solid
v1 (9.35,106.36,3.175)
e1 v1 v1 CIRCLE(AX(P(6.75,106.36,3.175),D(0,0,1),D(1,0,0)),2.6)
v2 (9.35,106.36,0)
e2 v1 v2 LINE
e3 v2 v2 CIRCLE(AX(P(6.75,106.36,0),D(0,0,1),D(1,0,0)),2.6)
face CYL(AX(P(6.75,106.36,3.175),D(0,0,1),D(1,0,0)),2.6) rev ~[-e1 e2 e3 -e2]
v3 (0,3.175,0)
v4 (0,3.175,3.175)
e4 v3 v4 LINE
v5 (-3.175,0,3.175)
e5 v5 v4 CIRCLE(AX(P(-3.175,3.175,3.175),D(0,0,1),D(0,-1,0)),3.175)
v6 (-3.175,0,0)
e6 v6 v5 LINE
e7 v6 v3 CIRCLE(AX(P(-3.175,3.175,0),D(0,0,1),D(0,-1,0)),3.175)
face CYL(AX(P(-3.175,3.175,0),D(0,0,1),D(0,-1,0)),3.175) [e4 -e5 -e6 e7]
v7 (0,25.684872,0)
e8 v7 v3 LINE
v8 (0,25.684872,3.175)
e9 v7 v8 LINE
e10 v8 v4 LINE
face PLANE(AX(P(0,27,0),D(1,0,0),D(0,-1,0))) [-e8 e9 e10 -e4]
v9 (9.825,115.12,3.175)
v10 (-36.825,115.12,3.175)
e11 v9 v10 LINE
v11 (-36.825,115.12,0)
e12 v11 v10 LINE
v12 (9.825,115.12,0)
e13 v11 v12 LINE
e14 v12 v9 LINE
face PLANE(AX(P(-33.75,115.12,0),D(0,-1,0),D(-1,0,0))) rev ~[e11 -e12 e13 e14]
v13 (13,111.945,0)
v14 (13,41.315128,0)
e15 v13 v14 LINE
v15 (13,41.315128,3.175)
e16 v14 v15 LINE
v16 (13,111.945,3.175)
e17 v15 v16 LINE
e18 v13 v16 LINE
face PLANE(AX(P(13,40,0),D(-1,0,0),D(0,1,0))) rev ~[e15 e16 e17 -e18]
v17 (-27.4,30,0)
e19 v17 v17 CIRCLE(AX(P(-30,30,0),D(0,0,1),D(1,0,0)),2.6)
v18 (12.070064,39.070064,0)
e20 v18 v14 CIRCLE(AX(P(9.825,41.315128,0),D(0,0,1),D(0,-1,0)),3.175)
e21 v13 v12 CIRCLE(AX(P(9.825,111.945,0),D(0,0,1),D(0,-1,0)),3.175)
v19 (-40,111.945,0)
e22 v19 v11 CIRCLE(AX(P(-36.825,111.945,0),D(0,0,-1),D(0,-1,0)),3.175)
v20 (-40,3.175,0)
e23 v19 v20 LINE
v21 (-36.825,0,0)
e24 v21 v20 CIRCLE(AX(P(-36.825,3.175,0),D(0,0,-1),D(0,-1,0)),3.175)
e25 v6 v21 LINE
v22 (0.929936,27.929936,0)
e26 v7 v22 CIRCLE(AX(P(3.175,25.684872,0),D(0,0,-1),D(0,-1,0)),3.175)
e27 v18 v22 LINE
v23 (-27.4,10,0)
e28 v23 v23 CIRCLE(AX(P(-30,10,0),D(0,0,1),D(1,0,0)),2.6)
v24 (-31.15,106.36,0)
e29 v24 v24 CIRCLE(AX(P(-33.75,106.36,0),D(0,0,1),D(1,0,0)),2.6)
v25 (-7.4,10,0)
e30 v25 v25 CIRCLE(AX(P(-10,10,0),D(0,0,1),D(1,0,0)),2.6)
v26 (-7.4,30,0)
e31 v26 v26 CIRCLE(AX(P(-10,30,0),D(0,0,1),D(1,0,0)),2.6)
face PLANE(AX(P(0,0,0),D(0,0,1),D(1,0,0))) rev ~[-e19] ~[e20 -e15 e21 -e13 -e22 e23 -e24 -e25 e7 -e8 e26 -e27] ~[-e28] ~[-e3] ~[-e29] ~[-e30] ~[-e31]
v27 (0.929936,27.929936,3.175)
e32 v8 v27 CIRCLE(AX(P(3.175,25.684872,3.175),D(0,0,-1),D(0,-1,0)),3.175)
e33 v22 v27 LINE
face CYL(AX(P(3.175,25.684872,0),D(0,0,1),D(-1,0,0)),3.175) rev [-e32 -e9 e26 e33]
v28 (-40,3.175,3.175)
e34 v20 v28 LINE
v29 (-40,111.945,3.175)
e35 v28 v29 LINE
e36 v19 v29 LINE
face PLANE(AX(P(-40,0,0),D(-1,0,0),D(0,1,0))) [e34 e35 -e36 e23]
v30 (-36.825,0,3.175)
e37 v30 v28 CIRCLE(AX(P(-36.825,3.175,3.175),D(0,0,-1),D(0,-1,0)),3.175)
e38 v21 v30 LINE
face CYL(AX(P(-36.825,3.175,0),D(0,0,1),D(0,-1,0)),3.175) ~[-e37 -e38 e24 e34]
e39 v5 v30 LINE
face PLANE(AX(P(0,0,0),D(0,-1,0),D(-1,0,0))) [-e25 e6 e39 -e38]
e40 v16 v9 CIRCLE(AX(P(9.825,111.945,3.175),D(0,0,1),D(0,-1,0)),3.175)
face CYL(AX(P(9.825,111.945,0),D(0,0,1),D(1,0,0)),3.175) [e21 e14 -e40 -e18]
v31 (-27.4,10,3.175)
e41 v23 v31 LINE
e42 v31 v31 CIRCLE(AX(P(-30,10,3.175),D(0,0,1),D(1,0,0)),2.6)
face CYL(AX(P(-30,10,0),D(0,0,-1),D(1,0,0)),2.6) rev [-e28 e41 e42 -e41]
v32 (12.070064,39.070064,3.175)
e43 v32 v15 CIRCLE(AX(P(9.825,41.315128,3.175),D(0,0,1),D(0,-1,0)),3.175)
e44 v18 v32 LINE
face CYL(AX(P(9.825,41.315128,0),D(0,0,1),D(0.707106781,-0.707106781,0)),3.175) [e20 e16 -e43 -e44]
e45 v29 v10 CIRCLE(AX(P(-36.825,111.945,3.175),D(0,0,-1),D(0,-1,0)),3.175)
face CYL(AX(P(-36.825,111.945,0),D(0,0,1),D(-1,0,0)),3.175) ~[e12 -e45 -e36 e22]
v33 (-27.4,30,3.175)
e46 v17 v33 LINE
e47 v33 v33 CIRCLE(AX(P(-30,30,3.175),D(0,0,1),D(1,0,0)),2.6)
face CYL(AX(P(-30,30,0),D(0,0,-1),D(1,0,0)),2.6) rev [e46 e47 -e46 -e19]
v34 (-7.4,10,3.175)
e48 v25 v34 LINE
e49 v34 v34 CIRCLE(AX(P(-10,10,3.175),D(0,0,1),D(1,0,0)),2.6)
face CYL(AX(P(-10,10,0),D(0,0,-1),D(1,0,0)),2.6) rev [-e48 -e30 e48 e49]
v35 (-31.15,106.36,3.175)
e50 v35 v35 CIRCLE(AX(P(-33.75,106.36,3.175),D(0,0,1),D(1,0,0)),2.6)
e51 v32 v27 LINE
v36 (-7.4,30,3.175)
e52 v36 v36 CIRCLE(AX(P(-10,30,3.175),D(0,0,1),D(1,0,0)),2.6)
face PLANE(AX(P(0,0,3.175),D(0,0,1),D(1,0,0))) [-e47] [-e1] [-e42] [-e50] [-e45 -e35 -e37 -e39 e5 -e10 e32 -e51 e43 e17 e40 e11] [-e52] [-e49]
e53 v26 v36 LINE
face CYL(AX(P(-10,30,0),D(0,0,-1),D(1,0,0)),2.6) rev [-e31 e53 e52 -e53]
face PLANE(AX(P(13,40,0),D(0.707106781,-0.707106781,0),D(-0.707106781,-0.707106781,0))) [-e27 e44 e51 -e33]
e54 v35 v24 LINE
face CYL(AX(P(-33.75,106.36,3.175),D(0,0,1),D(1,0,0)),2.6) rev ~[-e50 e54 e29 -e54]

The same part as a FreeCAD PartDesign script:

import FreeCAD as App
import Part
import Sketcher
from FreeCAD import Vector
Q = App.Units.Quantity


def edges_at(feature, points):
    """Names of the edges that pass closest to the given points."""
    edges = feature.Shape.Edges
    near = lambda p: min(range(len(edges)), key=lambda i: edges[i].distToShape(Part.Vertex(*p))[0])
    return sorted({f"Edge{near(p) + 1}" for p in points})


def add_polygon(sketch, points):
    """Adds a closed chain of lines whose ends are joined by coincident constraints."""
    first, n = sketch.GeometryCount, len(points)
    for a, b in zip(points, points[1:] + points[:1]):
        sketch.addGeometry(Part.LineSegment(App.Vector(*a, 0), App.Vector(*b, 0)), False)
    for i in range(n):
        sketch.addConstraint(Sketcher.Constraint("Coincident", first + i, 2, first + (i + 1) % n, 1))

doc = App.newDocument("Part")
body = doc.addObject("PartDesign::Body", "Body")

sketch1 = body.newObject("Sketcher::SketchObject", "Sketch")
sketch1.AttachmentSupport = (doc.getObject("XY_Plane"), [""])
sketch1.MapMode = "FlatFace"
add_polygon(sketch1, [(-40, 0), (0, 0), (0, 27), (13, 40), (13, 115.12), (-40, 115.12)])
sketch1.addGeometry(Part.Circle(Vector(-30, 10, 0), Vector(0, 0, 1), 2.6), False)
sketch1.addGeometry(Part.Circle(Vector(-30, 30, 0), Vector(0, 0, 1), 2.6), False)
sketch1.addGeometry(Part.Circle(Vector(-10, 10, 0), Vector(0, 0, 1), 2.6), False)
sketch1.addGeometry(Part.Circle(Vector(-10, 30, 0), Vector(0, 0, 1), 2.6), False)
sketch1.addConstraint([
    Sketcher.Constraint("Horizontal", 0),
    Sketcher.Constraint("Vertical", 1),
    Sketcher.Constraint("Vertical", 3),
    Sketcher.Constraint("Horizontal", 4),
    Sketcher.Constraint("Vertical", 5),
    Sketcher.Constraint("Coincident", 0, 2, -1, 1),
    Sketcher.Constraint("Equal", 6, 7),
    Sketcher.Constraint("Equal", 7, 8),
    Sketcher.Constraint("Equal", 8, 9),
    Sketcher.Constraint("Horizontal", 6, 3, 8, 3),
    Sketcher.Constraint("Horizontal", 7, 3, 9, 3),
    Sketcher.Constraint("Vertical", 6, 3, 7, 3),
    Sketcher.Constraint("Vertical", 8, 3, 9, 3),
    Sketcher.Constraint("Diameter", 6, Q("5.2 mm")),
    Sketcher.Constraint("DistanceX", 0, 1, 0, 2, Q("40 mm")),
    Sketcher.Constraint("DistanceX", 4, 2, 4, 1, Q("53 mm")),
    Sketcher.Constraint("Angle", 2, Q("45 deg")),
    Sketcher.Constraint("DistanceY", -1, 1, 6, 3, Q("10 mm")),
    Sketcher.Constraint("DistanceX", 8, 3, -1, 1, Q("10 mm")),
    Sketcher.Constraint("DistanceY", -1, 1, 2, 2, Q("40 mm")),
    Sketcher.Constraint("DistanceY", 6, 3, 7, 3, Q("20 mm")),
    Sketcher.Constraint("DistanceX", 6, 3, 8, 3, Q("20 mm")),
    Sketcher.Constraint("DistanceY", 3, 1, 3, 2, Q("75.12 mm")),
])
pad1 = body.newObject("PartDesign::Pad", "Pad")
pad1.Profile = sketch1
pad1.Length = 3.175
doc.recompute()

fillet = body.newObject("PartDesign::Fillet", "Fillet")
fillet.Base = (pad1, edges_at(pad1, [
    (0, 0, 1.587),
    (-40, 0, 1.587),
    (0, 27, 1.587),
    (13, 40, 1.587),
    (-40, 115.12, 1.587),
    (13, 115.12, 1.587),
]))
fillet.Radius = 3.175

sketch2 = body.newObject("Sketcher::SketchObject", "Sketch001")
sketch2.AttachmentSupport = (doc.getObject("XY_Plane"), [""])
sketch2.MapMode = "FlatFace"
sketch2.AttachmentOffset = App.Placement(Vector(0, 0, 3.175), App.Rotation())
sketch2.addGeometry([
    Part.Circle(Vector(-33.75, 106.36, 0), Vector(0, 0, 1), 2.6),
    Part.Circle(Vector(6.75, 106.36, 0), Vector(0, 0, 1), 2.6),
], False)
sketch2.addConstraint([
    Sketcher.Constraint("Equal", 0, 1),
    Sketcher.Constraint("Horizontal", 0, 3, 1, 3),
    Sketcher.Constraint("Diameter", 0, Q("5.2 mm")),
    Sketcher.Constraint("DistanceX", 0, 3, 1, 3, Q("40.5 mm")),
    Sketcher.Constraint("DistanceX", 0, 3, -1, 1, Q("33.75 mm")),
    Sketcher.Constraint("DistanceY", -1, 1, 0, 3, Q("106.36 mm")),
])
pocket1 = body.newObject("PartDesign::Pocket", "Pocket")
pocket1.Profile = sketch2
pocket1.Type = "UpToFirst"

doc.recompute()
